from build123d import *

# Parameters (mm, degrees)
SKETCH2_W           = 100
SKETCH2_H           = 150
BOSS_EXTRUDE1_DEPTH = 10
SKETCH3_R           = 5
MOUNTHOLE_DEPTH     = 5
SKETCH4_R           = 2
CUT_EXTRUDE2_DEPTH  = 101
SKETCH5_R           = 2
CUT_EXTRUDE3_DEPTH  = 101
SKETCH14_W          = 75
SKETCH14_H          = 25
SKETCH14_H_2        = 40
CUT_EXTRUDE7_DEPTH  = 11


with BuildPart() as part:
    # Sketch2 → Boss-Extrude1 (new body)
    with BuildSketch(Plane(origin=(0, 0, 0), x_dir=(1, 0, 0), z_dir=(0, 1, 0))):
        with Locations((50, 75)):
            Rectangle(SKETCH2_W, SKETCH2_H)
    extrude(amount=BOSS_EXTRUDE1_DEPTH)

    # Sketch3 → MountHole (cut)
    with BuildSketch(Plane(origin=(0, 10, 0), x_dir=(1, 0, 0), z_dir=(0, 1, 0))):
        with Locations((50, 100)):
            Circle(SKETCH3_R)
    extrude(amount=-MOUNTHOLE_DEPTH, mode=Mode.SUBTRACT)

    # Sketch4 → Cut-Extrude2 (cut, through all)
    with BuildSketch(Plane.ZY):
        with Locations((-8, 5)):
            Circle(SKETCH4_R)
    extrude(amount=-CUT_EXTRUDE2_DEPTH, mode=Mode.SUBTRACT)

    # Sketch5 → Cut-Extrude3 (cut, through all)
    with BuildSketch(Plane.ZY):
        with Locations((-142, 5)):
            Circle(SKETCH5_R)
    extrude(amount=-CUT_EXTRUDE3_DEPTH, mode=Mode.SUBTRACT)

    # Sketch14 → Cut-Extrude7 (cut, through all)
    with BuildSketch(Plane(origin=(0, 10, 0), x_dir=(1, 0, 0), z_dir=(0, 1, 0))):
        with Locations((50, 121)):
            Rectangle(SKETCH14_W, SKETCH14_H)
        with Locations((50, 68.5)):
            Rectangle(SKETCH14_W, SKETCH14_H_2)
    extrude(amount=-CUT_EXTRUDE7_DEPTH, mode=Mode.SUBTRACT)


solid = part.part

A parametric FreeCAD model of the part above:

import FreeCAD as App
import Part
import Sketcher


def add_polygon(sketch, points):
    """Adds a closed chain of lines whose ends are joined by coincident constraints."""
    first, n = sketch.GeometryCount, len(points)
    for a, b in zip(points, points[1:] + points[:1]):
        sketch.addGeometry(Part.LineSegment(App.Vector(*a, 0), App.Vector(*b, 0)), False)
    for i in range(n):
        sketch.addConstraint(Sketcher.Constraint("Coincident", first + i, 2, first + (i + 1) % n, 1))

doc = App.newDocument("Part")
body = doc.addObject("PartDesign::Body", "Body")

sketch1 = body.newObject("Sketcher::SketchObject", "Sketch")
sketch1.AttachmentSupport = (doc.getObject("XZ_Plane"), [""])
sketch1.MapMode = "FlatFace"
add_polygon(sketch1, [(0, -150), (0, 0), (100, 0), (100, -150)])
sketch1.addConstraint([
    Sketcher.Constraint("Vertical", 0),
    Sketcher.Constraint("Horizontal", 1),
    Sketcher.Constraint("Vertical", 2),
    Sketcher.Constraint("Horizontal", 3),
    Sketcher.Constraint("Coincident", 0, 2, -1, 1),
    Sketcher.Constraint("DistanceX", 1, 1, 1, 2, 100.0),
    Sketcher.Constraint("DistanceY", 0, 1, 0, 2, 150.0),
])
pad1 = body.newObject("PartDesign::Pad", "Pad")
pad1.Profile = sketch1
pad1.Length = 10
pad1.Reversed = True

sketch2 = body.newObject("Sketcher::SketchObject", "Sketch001")
sketch2.AttachmentSupport = (doc.getObject("XZ_Plane"), [""])
sketch2.MapMode = "FlatFace"
sketch2.AttachmentOffset = App.Placement(App.Vector(0, 0, -10), App.Rotation())
sketch2.addGeometry(Part.Circle(App.Vector(50, -100, 0), App.Vector(0, 0, 1), 5), False)
sketch2.addConstraint([
    Sketcher.Constraint("Diameter", 0, 10.0),
    Sketcher.Constraint("DistanceX", -1, 1, 0, 3, 50.0),
    Sketcher.Constraint("DistanceY", 0, 3, -1, 1, 100.0),
])
pocket1 = body.newObject("PartDesign::Pocket", "Pocket")
pocket1.Profile = sketch2
pocket1.Length = 5
pocket1.Reversed = True

sketch3 = body.newObject("Sketcher::SketchObject", "Sketch002")
sketch3.AttachmentSupport = (doc.getObject("YZ_Plane"), [""])
sketch3.MapMode = "FlatFace"
sketch3.addGeometry(Part.Circle(App.Vector(5, -8, 0), App.Vector(0, 0, 1), 2), False)
sketch3.addConstraint([
    Sketcher.Constraint("Diameter", 0, 4.0),
    Sketcher.Constraint("DistanceX", -1, 1, 0, 3, 5.0),
    Sketcher.Constraint("DistanceY", 0, 3, -1, 1, 8.0),
])
pocket2 = body.newObject("PartDesign::Pocket", "Pocket001")
pocket2.Profile = sketch3
pocket2.Type = "ThroughAll"
pocket2.Reversed = True

sketch4 = body.newObject("Sketcher::SketchObject", "Sketch003")
sketch4.AttachmentSupport = (doc.getObject("YZ_Plane"), [""])
sketch4.MapMode = "FlatFace"
sketch4.addGeometry(Part.Circle(App.Vector(5, -142, 0), App.Vector(0, 0, 1), 2), False)
sketch4.addConstraint([
    Sketcher.Constraint("Diameter", 0, 4.0),
    Sketcher.Constraint("DistanceX", -1, 1, 0, 3, 5.0),
    Sketcher.Constraint("DistanceY", 0, 3, -1, 1, 142.0),
])
pocket3 = body.newObject("PartDesign::Pocket", "Pocket002")
pocket3.Profile = sketch4
pocket3.Type = "ThroughAll"
pocket3.Reversed = True

sketch5 = body.newObject("Sketcher::SketchObject", "Sketch004")
sketch5.AttachmentSupport = (doc.getObject("XZ_Plane"), [""])
sketch5.MapMode = "FlatFace"
sketch5.AttachmentOffset = App.Placement(App.Vector(0, 0, -10), App.Rotation())
add_polygon(sketch5, [(12.5, -133.5), (12.5, -108.5), (87.5, -108.5), (87.5, -133.5)])
add_polygon(sketch5, [(12.5, -88.5), (12.5, -48.5), (87.5, -48.5), (87.5, -88.5)])
sketch5.addConstraint([
    Sketcher.Constraint("Vertical", 0),
    Sketcher.Constraint("Horizontal", 1),
    Sketcher.Constraint("Vertical", 2),
    Sketcher.Constraint("Horizontal", 3),
    Sketcher.Constraint("Vertical", 4),
    Sketcher.Constraint("Horizontal", 5),
    Sketcher.Constraint("Vertical", 6),
    Sketcher.Constraint("Horizontal", 7),
    Sketcher.Constraint("Vertical", 3, 2, 4, 2),
    Sketcher.Constraint("Vertical", 2, 2, 5, 2),
    Sketcher.Constraint("DistanceX", 1, 1, 1, 2, 75.0),
    Sketcher.Constraint("DistanceY", 0, 1, 0, 2, 25.0),
    Sketcher.Constraint("DistanceY", 4, 1, 4, 2, 40.0),
    Sketcher.Constraint("DistanceY", 0, 2, 4, 2, 60.0),
    Sketcher.Constraint("DistanceX", -1, 1, 0, 2, 12.5),
    Sketcher.Constraint("DistanceY", 0, 2, -1, 1, 108.5),
])
pocket4 = body.newObject("PartDesign::Pocket", "Pocket003")
pocket4.Profile = sketch5
pocket4.Type = "ThroughAll"
pocket4.Reversed = True

doc.recompute()
